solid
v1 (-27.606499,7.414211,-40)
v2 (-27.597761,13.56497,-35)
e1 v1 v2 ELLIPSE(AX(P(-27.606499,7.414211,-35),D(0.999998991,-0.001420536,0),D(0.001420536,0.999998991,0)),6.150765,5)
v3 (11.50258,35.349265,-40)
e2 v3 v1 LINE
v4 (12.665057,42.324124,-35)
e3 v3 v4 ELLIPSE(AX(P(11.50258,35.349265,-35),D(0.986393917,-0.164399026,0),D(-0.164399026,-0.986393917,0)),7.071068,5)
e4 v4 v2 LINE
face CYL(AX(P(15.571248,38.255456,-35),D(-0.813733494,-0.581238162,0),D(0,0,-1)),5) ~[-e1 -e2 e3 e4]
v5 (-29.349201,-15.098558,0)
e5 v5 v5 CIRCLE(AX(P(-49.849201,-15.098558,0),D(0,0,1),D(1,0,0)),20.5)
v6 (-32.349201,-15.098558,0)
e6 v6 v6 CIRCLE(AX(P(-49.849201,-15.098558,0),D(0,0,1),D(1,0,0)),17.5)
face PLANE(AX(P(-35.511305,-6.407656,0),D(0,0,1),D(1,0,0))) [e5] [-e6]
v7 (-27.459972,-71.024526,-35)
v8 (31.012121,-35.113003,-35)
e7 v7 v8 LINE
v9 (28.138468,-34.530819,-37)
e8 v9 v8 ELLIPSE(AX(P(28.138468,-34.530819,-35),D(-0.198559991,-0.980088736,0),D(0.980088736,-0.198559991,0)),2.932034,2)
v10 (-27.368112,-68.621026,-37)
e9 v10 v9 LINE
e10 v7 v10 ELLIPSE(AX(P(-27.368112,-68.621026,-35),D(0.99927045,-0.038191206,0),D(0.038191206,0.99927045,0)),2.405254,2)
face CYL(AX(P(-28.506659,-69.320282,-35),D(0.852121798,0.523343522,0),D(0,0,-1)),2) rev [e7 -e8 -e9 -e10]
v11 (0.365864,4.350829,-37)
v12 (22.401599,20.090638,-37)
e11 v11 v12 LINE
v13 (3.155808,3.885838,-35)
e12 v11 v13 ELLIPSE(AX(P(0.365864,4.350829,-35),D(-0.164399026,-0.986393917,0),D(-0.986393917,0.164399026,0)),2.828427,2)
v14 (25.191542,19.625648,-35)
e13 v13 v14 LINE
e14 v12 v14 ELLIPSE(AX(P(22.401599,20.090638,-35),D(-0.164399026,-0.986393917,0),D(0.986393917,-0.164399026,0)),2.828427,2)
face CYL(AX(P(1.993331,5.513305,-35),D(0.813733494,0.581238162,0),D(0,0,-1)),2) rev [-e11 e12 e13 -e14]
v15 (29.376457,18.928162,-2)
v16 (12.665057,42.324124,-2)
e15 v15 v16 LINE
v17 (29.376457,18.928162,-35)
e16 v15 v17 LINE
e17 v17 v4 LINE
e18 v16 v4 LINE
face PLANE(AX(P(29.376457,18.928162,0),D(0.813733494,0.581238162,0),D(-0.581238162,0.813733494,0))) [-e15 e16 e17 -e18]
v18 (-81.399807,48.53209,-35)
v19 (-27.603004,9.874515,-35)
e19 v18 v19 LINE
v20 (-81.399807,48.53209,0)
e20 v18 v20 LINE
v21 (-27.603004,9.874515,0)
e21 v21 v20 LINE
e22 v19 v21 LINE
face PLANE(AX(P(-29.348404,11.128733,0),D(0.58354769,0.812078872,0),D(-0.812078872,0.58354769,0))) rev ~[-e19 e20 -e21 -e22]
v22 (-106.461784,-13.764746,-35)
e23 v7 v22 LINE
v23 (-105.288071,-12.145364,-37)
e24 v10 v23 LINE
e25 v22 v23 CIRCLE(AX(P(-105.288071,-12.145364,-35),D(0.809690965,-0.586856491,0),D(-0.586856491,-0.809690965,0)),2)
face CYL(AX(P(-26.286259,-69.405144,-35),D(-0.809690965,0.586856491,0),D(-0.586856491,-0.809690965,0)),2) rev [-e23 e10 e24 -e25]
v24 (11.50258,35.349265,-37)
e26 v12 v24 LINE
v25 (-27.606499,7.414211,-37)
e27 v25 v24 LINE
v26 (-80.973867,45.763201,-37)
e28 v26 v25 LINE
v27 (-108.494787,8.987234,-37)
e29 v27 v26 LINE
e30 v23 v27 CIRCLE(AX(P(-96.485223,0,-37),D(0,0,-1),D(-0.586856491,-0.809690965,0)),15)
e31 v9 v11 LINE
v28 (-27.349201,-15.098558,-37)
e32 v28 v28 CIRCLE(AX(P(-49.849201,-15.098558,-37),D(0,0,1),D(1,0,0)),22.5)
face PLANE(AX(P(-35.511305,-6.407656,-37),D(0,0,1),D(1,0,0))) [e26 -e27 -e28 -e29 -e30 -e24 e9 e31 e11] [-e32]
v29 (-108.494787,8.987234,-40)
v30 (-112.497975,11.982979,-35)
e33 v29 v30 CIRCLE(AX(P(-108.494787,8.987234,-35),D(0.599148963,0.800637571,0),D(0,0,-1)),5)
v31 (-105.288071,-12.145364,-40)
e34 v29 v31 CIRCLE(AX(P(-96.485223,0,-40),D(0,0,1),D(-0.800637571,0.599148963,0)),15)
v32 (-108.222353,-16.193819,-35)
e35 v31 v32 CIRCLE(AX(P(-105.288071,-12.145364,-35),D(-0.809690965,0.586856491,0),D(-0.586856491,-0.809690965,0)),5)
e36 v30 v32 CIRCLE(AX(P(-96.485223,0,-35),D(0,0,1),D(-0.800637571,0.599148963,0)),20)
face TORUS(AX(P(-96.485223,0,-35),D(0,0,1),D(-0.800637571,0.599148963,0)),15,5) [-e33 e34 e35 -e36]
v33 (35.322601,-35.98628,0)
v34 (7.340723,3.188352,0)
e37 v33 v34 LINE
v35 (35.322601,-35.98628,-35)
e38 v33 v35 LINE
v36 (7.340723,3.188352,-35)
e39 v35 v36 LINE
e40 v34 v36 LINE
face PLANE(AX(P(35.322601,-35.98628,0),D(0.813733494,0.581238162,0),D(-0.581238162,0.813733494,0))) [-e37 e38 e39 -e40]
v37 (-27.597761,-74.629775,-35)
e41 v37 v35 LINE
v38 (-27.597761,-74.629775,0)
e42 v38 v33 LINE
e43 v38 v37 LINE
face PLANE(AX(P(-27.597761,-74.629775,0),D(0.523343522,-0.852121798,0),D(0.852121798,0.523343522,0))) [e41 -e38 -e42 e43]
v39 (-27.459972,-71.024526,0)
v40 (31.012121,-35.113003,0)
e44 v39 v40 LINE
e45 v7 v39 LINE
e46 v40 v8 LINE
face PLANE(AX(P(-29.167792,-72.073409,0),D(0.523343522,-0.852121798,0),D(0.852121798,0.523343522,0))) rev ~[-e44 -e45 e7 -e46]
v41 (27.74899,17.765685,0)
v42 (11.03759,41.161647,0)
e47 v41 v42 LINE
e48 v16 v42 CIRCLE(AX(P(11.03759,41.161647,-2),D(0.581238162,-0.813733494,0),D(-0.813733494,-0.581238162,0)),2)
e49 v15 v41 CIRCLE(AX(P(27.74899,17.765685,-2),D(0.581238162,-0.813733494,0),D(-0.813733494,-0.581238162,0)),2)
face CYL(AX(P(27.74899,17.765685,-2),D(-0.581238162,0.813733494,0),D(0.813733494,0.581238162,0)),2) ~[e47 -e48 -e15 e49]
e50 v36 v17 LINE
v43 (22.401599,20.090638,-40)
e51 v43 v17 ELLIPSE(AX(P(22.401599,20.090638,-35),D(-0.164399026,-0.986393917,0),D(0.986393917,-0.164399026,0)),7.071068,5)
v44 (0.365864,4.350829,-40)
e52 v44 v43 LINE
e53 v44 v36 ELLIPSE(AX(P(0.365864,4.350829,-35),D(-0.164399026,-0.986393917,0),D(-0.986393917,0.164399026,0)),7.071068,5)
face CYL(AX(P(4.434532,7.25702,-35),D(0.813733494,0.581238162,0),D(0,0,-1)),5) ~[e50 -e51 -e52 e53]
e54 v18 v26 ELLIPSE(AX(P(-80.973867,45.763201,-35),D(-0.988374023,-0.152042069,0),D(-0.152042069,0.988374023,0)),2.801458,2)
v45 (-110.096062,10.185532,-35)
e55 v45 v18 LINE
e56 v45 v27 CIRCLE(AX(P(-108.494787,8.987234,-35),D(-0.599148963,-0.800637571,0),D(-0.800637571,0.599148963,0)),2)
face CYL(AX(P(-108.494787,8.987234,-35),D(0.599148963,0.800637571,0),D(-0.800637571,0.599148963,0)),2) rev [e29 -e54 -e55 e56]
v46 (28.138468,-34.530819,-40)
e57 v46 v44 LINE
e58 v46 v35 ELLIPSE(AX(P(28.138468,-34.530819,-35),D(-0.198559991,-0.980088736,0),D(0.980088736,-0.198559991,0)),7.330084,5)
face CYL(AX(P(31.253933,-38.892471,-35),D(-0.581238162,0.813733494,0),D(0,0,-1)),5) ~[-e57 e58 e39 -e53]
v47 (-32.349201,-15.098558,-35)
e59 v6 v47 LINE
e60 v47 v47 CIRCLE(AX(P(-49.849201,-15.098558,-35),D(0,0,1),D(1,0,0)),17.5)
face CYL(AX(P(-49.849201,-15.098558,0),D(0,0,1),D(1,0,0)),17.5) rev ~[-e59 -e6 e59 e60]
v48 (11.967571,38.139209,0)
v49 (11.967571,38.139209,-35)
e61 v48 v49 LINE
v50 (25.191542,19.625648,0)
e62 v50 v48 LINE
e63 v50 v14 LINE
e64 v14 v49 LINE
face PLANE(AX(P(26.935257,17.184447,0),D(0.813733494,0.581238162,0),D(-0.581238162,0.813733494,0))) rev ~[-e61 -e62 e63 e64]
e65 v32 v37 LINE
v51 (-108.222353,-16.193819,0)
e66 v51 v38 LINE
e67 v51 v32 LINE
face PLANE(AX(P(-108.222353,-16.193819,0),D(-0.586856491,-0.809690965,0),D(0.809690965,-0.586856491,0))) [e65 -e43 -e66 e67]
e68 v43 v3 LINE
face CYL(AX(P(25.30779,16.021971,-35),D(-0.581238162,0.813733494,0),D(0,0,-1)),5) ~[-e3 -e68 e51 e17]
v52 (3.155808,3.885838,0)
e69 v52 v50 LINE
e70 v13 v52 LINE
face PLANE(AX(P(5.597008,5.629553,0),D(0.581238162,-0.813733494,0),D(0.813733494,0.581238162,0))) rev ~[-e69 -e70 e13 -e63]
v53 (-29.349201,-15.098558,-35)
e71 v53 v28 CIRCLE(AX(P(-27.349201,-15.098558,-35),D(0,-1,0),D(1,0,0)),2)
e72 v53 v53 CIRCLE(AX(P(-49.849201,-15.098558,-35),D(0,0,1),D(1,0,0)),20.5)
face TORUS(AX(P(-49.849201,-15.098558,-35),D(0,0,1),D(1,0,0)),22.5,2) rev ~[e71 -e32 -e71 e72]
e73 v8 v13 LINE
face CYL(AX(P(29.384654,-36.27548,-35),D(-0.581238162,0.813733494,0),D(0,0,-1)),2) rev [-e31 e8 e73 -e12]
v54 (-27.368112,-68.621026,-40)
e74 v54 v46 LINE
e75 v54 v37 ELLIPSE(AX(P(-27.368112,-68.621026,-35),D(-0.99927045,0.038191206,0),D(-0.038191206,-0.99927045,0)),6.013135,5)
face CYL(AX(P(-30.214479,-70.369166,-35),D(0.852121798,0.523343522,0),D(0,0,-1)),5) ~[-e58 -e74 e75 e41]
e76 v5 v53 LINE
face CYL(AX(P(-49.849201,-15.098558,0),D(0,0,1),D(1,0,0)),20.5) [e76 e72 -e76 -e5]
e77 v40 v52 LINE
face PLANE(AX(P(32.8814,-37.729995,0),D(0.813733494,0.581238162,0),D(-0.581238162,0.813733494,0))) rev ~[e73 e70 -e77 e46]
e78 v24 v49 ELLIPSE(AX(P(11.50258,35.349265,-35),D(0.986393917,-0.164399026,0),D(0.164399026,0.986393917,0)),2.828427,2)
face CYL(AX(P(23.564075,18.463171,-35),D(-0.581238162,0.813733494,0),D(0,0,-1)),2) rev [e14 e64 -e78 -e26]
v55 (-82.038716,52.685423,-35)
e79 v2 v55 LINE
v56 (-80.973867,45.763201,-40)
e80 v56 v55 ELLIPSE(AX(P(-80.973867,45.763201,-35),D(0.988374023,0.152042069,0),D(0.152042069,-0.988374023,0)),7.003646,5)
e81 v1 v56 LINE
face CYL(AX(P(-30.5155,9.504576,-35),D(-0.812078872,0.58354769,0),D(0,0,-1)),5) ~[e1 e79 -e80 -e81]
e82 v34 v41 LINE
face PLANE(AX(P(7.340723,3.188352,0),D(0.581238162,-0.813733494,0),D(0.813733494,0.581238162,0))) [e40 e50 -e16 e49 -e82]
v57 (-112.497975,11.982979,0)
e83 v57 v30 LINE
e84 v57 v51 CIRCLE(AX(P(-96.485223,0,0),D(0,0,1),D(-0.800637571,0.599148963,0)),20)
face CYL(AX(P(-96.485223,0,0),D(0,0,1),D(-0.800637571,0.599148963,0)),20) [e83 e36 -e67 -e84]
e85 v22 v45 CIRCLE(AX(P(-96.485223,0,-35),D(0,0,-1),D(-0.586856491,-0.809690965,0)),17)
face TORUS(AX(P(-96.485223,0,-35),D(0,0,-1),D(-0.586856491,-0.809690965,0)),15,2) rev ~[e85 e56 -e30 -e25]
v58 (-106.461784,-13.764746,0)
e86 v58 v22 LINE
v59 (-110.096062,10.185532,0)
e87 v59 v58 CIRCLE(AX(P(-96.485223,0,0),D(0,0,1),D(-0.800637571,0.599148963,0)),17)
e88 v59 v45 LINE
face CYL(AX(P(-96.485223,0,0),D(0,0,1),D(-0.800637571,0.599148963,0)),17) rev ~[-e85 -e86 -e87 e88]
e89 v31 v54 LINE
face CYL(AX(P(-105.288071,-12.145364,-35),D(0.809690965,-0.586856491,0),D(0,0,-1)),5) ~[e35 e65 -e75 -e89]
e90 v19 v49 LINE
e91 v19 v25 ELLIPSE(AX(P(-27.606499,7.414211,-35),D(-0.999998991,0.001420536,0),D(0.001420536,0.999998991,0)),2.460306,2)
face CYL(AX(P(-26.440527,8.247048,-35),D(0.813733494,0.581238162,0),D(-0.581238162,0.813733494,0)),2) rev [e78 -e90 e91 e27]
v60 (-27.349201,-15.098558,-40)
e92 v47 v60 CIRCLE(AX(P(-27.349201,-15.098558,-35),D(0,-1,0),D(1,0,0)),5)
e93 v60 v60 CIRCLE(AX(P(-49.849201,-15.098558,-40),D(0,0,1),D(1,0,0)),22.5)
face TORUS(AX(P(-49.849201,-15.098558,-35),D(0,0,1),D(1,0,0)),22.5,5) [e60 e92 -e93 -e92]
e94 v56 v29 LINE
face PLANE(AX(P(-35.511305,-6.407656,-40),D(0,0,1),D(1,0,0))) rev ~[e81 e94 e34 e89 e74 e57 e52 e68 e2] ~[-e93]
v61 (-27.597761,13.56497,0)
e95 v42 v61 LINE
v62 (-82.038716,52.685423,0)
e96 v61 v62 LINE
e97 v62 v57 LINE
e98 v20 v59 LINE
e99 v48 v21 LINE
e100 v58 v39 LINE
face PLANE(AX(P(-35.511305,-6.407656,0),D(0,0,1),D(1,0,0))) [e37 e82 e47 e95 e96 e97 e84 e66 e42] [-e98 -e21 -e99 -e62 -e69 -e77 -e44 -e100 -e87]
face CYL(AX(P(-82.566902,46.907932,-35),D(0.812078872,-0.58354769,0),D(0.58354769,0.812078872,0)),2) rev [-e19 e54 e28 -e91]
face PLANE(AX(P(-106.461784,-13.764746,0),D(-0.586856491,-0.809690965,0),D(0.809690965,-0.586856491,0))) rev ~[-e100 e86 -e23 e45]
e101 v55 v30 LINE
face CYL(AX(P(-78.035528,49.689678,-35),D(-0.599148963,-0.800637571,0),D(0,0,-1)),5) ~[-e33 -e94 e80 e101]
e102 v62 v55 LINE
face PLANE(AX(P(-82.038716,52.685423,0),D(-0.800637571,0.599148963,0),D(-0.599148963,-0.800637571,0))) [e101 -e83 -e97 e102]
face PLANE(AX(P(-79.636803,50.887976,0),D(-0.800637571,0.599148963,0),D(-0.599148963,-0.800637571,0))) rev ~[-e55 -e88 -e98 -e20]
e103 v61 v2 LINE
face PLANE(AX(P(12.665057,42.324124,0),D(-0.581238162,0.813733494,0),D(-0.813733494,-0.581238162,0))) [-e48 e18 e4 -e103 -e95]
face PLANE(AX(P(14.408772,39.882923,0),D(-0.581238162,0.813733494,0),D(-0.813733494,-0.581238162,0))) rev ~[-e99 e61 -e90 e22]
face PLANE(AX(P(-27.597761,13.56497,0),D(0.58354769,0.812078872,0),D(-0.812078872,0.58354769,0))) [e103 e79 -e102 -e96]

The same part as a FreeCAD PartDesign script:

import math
import FreeCAD as App
import Part
import Sketcher
from FreeCAD import Vector


def edges_at(feature, points):
    """Names of the edges that pass closest to the given points."""
    edges = feature.Shape.Edges
    near = lambda p: min(range(len(edges)), key=lambda i: edges[i].distToShape(Part.Vertex(*p))[0])
    return sorted({f"Edge{near(p) + 1}" for p in points})


def faces_at(feature, points):
    """Names of the faces that lie closest to the given points."""
    faces = feature.Shape.Faces
    near = lambda p: min(range(len(faces)), key=lambda i: faces[i].distToShape(Part.Vertex(*p))[0])
    return sorted({f"Face{near(p) + 1}" for p in points})

doc = App.newDocument("Part")
body = doc.addObject("PartDesign::Body", "Body")

sketch1 = body.newObject("Sketcher::SketchObject", "Sketch")
sketch1.AttachmentSupport = (doc.getObject("XY_Plane"), [""])
sketch1.MapMode = "FlatFace"
sketch1.addGeometry([
    Part.LineSegment(Vector(-28, 14, 0), Vector(-82, 53, 0)),
    Part.LineSegment(Vector(-82, 53, 0), Vector(-112, 12, 0)),
    Part.ArcOfCircle(Part.Circle(Vector(-96, 0, 0), Vector(0, 0, 1), 20), math.radians(143), math.radians(234)),
    Part.LineSegment(Vector(-108, -16, 0), Vector(-28, -75, 0)),
    Part.LineSegment(Vector(-28, -75, 0), Vector(35, -36, 0)),
    Part.LineSegment(Vector(35, -36, 0), Vector(7, 3, 0)),
    Part.LineSegment(Vector(7, 3, 0), Vector(29, 19, 0)),
    Part.LineSegment(Vector(29, 19, 0), Vector(13, 42, 0)),
    Part.LineSegment(Vector(13, 42, 0), Vector(-28, 14, 0)),
], False)
sketch1.addConstraint([
    Sketcher.Constraint("Coincident", 0, 2, 1, 1),
    Sketcher.Constraint("Tangent", 1, 2, 2, 1),
    Sketcher.Constraint("Tangent", 2, 2, 3, 1),
    Sketcher.Constraint("Coincident", 3, 2, 4, 1),
    Sketcher.Constraint("Coincident", 4, 2, 5, 1),
    Sketcher.Constraint("Coincident", 5, 2, 6, 1),
    Sketcher.Constraint("Coincident", 6, 2, 7, 1),
    Sketcher.Constraint("Coincident", 7, 2, 8, 1),
    Sketcher.Constraint("Coincident", 8, 2, 0, 1),
    Sketcher.Constraint("PointOnObject", 2, 3, -1),
    Sketcher.Constraint("Perpendicular", 5, 6),
    Sketcher.Constraint("Perpendicular", 6, 7),
    Sketcher.Constraint("Perpendicular", 7, 8),
    Sketcher.Constraint("Vertical", 3, 2, 8, 2),
    Sketcher.Constraint("Radius", 2, 20.0),
    Sketcher.Constraint("Distance", 0, 67.038999),
    Sketcher.Constraint("DistanceX", -1, 1, 4, 2, 35.322601),
    Sketcher.Constraint("DistanceY", 2, 2, 1, 2, 28.176799),
    Sketcher.Constraint("DistanceX", 7, 2, 6, 2, 16.7114),
    Sketcher.Constraint("DistanceY", 7, 2, 0, 2, 10.361299),
    Sketcher.Constraint("Distance", 1, 50.837539),
    Sketcher.Constraint("Distance", 7, 28.751382),
    Sketcher.Constraint("Distance", 8, 49.479121),
    Sketcher.Constraint("DistanceY", -1, 1, 1, 2, 11.982979),
    Sketcher.Constraint("DistanceX", 3, 2, -1, 1, 27.597761),
    Sketcher.Constraint("DistanceY", 4, 2, -1, 1, 35.98628),
])
pad1 = body.newObject("PartDesign::Pad", "Pad")
pad1.Profile = sketch1
pad1.Length = 40
pad1.Reversed = True

sketch2 = body.newObject("Sketcher::SketchObject", "Sketch001")
sketch2.AttachmentSupport = (doc.getObject("XY_Plane"), [""])
sketch2.MapMode = "FlatFace"
sketch2.addGeometry(Part.Circle(Vector(-50, -15, 0), Vector(0, 0, 1), 18), False)
sketch2.addConstraint([
    Sketcher.Constraint("Diameter", 0, 35.0),
    Sketcher.Constraint("DistanceX", 0, 3, -1, 1, 49.849201),
    Sketcher.Constraint("DistanceY", 0, 3, -1, 1, 15.098558),
])
pocket1 = body.newObject("PartDesign::Pocket", "Pocket")
pocket1.Profile = sketch2
pocket1.Type = "ThroughAll"
pocket1.Midplane = True
doc.recompute()

thickness = body.newObject("PartDesign::Thickness", "Thickness")
thickness.Base = (pocket1, faces_at(pocket1, [(-70.943, -36.435, 0)]))
thickness.Value = 3
thickness.Reversed = True
thickness.Join = "Intersection"
doc.recompute()

fillet = body.newObject("PartDesign::Fillet", "Fillet")
fillet.Base = (thickness, edges_at(thickness, [
    (-95.748, 29.359, -37),
    (-113.293, -2.55, -37),
    (-66.961, -42.395, -37),
    (1.776, -53.069, -37),
    (17.084, -15.614, -37),
    (14.174, 11.756, -37),
    (18.58, 28.882, -37),
    (-7.818, 24.007, -37),
    (-54.501, 29.203, -37),
    (-70.349, -15.099, -37),
]))
fillet.Radius = 2
doc.recompute()

fillet2 = body.newObject("PartDesign::Fillet", "Fillet001")
fillet2.Base = (fillet, edges_at(fillet, [
    (-67.91, -45.412, -40),
    (-116.259, -3.001, -40),
    (3.862, -55.308, -40),
    (-97.268, 32.334, -40),
    (21.332, -16.399, -40),
    (-54.818, 33.125, -40),
    (18.359, 11.058, -40),
    (-7.466, 27.945, -40),
    (21.021, 30.626, -40),
    (-67.349, -15.099, -40),
]))
fillet2.Radius = 5
doc.recompute()

fillet3 = body.newObject("PartDesign::Fillet", "Fillet002")
fillet3.Base = (fillet2, edges_at(fillet2, [(21.021, 30.626, 0)]))
fillet3.Radius = 2

doc.recompute()
